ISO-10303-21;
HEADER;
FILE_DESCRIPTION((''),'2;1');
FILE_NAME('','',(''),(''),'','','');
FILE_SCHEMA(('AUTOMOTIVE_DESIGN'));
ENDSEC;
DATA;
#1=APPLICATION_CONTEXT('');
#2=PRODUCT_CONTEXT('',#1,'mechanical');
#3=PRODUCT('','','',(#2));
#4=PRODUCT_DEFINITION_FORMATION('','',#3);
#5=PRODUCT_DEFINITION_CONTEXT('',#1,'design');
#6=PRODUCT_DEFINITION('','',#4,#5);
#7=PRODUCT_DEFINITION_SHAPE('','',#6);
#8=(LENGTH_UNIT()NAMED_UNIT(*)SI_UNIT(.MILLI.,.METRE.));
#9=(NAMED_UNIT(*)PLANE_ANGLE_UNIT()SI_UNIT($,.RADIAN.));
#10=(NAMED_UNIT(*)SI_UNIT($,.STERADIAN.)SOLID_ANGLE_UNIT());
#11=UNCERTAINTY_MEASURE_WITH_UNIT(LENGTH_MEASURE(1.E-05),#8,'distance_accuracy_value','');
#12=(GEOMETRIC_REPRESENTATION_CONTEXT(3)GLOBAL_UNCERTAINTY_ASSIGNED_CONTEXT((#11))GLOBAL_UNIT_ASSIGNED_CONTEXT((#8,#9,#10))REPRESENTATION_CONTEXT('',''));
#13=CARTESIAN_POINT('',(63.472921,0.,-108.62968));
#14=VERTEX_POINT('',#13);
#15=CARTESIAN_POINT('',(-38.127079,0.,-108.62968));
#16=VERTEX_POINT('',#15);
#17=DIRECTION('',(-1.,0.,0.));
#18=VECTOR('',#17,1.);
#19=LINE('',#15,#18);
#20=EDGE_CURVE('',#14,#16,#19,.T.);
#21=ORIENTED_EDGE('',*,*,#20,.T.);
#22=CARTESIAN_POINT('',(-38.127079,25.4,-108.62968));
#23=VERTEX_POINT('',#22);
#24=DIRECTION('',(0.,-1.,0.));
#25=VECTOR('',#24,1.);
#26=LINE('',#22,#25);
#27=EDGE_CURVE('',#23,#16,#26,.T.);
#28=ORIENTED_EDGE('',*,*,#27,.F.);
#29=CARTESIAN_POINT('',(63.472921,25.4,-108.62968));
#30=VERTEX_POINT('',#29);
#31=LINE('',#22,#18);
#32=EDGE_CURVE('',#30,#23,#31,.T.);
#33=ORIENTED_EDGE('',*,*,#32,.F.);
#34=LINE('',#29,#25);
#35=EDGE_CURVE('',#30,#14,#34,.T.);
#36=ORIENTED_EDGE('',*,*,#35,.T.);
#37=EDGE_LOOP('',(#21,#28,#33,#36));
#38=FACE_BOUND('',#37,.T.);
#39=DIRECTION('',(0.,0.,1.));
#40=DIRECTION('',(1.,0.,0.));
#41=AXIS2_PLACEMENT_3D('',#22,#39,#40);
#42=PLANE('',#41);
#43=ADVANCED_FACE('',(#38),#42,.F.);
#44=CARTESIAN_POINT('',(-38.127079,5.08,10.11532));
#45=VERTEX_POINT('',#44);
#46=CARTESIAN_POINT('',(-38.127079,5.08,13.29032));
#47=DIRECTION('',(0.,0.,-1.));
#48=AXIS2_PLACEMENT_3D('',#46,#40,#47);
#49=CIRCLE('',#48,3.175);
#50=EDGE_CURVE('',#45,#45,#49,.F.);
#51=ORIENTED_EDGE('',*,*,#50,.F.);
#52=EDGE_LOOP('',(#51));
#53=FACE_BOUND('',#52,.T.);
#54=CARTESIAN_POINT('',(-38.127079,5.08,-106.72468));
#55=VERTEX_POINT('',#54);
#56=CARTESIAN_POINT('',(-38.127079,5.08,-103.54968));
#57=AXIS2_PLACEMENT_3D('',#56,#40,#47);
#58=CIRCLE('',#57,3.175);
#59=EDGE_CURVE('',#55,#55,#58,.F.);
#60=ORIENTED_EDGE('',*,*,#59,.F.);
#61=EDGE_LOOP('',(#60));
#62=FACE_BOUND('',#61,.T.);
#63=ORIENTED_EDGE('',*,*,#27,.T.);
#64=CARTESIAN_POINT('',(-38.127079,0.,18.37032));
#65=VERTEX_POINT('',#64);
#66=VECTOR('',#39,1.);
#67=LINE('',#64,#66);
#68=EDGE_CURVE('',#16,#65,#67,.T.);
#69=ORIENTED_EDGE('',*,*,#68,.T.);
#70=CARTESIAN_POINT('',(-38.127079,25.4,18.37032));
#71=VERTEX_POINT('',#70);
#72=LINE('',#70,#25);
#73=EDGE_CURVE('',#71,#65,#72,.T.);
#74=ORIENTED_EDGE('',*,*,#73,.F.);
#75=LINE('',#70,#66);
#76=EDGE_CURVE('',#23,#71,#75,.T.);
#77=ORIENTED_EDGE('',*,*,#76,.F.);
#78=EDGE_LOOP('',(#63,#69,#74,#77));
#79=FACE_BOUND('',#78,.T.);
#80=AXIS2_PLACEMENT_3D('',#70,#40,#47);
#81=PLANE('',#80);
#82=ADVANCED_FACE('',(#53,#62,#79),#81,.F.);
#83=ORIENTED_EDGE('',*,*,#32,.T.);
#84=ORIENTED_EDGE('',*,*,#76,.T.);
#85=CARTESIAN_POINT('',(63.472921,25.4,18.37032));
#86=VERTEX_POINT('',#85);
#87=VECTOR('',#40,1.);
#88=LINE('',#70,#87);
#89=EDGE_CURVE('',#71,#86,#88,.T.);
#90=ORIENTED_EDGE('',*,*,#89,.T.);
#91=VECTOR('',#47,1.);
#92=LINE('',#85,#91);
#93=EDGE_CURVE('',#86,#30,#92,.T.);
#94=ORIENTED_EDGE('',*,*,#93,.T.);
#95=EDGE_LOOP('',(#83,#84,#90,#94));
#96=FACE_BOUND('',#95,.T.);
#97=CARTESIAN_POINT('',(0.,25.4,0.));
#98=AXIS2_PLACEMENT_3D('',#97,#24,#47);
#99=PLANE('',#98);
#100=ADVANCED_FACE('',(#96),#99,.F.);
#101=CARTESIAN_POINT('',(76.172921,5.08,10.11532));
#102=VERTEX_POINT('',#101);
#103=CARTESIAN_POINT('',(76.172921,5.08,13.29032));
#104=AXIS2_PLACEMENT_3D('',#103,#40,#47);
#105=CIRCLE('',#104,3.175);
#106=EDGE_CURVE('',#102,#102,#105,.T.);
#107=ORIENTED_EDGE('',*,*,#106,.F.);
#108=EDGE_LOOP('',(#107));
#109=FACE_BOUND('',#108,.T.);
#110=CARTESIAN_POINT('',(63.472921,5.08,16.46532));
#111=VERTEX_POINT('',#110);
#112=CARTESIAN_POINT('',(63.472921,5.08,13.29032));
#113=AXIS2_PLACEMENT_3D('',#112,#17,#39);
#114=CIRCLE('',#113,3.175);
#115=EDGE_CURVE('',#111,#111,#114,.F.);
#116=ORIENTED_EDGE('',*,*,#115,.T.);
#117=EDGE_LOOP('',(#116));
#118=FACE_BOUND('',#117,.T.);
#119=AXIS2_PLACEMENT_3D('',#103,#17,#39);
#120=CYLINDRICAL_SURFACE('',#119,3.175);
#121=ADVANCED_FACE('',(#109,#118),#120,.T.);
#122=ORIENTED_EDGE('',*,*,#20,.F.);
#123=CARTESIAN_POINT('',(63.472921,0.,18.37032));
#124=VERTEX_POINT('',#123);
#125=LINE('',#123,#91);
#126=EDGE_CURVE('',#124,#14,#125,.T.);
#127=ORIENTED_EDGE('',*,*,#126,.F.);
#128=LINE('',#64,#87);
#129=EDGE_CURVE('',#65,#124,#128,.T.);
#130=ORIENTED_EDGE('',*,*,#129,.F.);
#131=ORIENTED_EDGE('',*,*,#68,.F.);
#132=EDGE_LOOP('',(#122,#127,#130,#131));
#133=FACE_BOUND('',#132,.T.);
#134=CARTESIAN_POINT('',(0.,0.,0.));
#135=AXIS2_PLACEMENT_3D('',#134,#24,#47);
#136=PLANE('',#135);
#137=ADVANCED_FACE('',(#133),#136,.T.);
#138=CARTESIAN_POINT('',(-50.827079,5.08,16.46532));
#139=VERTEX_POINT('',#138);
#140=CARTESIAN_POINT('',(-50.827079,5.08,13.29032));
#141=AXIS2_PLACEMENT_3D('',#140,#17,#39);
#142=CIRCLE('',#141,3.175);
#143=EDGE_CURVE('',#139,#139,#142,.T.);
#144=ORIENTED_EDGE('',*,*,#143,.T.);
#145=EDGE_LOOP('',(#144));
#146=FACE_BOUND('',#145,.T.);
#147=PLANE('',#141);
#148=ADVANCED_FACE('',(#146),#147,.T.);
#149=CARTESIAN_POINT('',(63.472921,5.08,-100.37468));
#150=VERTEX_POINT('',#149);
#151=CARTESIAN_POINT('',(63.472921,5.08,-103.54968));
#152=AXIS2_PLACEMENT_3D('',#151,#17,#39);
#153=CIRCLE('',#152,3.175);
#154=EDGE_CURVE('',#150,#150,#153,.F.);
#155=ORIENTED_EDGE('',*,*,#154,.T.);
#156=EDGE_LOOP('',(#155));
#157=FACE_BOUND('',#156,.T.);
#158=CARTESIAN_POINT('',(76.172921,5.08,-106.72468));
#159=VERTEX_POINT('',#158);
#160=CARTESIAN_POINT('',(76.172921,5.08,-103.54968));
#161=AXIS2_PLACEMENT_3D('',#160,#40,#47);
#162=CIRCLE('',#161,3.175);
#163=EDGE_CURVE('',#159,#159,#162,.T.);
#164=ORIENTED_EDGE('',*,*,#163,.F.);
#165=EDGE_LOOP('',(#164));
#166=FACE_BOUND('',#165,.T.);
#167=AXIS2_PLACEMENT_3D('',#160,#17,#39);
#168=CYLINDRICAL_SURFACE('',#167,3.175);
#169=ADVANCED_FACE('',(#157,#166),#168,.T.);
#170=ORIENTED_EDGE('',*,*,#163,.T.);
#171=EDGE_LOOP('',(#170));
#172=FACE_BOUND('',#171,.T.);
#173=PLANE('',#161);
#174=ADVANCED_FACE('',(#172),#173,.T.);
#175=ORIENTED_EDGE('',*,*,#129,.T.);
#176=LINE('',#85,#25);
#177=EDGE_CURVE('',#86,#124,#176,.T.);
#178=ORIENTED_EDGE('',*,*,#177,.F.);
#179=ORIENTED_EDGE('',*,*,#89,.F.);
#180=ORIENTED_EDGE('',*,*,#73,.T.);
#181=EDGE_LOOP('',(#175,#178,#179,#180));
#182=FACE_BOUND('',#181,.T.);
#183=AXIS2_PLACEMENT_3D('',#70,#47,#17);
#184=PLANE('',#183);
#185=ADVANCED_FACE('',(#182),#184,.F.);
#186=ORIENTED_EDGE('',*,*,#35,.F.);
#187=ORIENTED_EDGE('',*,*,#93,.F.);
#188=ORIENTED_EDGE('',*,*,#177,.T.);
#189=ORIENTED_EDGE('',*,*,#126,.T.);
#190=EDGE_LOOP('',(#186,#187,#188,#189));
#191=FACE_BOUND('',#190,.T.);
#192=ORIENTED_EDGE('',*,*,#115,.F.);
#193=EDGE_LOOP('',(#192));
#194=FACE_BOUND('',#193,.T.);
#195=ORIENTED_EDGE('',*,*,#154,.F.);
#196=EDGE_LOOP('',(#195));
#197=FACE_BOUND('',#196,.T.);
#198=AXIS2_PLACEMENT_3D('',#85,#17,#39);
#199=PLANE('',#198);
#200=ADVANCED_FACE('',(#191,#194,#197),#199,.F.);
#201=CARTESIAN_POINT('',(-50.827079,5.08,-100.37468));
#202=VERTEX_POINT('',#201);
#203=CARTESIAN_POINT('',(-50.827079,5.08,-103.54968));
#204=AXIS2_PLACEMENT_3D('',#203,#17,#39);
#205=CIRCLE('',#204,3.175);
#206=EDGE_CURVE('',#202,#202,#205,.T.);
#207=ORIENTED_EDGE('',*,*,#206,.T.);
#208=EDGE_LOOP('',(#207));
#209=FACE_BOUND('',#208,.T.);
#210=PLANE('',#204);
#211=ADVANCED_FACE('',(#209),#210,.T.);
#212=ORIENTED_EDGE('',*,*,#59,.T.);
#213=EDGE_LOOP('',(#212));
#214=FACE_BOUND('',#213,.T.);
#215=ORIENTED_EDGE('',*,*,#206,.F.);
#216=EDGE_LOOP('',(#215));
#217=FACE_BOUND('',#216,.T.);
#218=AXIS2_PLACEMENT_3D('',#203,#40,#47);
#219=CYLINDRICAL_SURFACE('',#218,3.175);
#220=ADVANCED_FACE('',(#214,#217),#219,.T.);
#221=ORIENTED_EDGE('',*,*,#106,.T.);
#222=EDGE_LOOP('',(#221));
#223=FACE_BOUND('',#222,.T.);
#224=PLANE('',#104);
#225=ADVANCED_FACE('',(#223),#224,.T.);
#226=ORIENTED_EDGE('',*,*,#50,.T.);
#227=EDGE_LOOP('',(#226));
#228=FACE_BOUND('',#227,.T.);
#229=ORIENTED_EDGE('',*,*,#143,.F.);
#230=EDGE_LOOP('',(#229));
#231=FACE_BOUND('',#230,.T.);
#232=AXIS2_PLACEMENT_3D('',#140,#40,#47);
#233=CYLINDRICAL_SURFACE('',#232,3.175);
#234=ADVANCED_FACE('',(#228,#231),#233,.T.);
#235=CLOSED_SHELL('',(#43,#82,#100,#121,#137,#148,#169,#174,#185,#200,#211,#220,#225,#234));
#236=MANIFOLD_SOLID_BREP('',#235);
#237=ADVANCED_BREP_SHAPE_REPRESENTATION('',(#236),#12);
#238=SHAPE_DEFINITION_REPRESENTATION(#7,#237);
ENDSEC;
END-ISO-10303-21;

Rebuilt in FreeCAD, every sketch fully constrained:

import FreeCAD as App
import Part
import Sketcher
Q = App.Units.Quantity

doc = App.newDocument("Part")
params = doc.addObject("Spreadsheet::Sheet", "Params")
for row, (alias, value) in enumerate([
    ("sketch1_width", "4 in"),
    ("sketch1_height", "5 in"),
    ("pad1_length", "1 in"),
    ("sketch2_diameter", "0.25 in"),
    ("pad2_length", "0.5 in"),
    ("sketch3_diameter", "0.25 in"),
    ("pad3_length", "0.5 in"),
    ("sketch4_diameter", "0.25 in"),
    ("pad4_length", "0.5 in"),
    ("sketch5_diameter", "0.25 in"),
    ("pad5_length", "0.5 in"),
], start=1):
    params.set(f"A{row}", alias)
    params.set(f"B{row}", "=" + value)
    params.setAlias(f"B{row}", alias)

body = doc.addObject("PartDesign::Body", "Body")

# Sketch on XZ plane
sketch1 = doc.addObject("Sketcher::SketchObject", "Sketch")
body.addObject(sketch1)
sketch1.AttachmentSupport = (doc.XZ_Plane, [""])
sketch1.MapMode = "FlatFace"
sketch1.addGeometry([
    Part.LineSegment(App.Vector(-38.127079, -108.62968, 0), App.Vector(-38.127079, 18.37032, 0)),
    Part.LineSegment(App.Vector(-38.127079, 18.37032, 0), App.Vector(63.472921, 18.37032, 0)),
    Part.LineSegment(App.Vector(63.472921, 18.37032, 0), App.Vector(63.472921, -108.62968, 0)),
    Part.LineSegment(App.Vector(63.472921, -108.62968, 0), App.Vector(-38.127079, -108.62968, 0)),
], False)
sketch1.addConstraint([
    Sketcher.Constraint("Coincident", 0, 2, 1, 1),
    Sketcher.Constraint("Coincident", 1, 2, 2, 1),
    Sketcher.Constraint("Coincident", 2, 2, 3, 1),
    Sketcher.Constraint("Coincident", 3, 2, 0, 1),
    Sketcher.Constraint("Vertical", 0),
    Sketcher.Constraint("Horizontal", 1),
    Sketcher.Constraint("Vertical", 2),
    Sketcher.Constraint("Horizontal", 3),
    Sketcher.Constraint("DistanceX", 1, 1, 1, 2, Q("4 in")),
    Sketcher.Constraint("DistanceY", 0, 1, 0, 2, Q("5 in")),
    Sketcher.Constraint("DistanceX", 0, 2, -1, 1, Q("38.127079 mm")),
    Sketcher.Constraint("DistanceY", -1, 1, 0, 2, Q("18.37032 mm")),
])
sketch1.setExpression("Constraints[8]", "Params.sketch1_width")
sketch1.setExpression("Constraints[9]", "Params.sketch1_height")
pad1 = doc.addObject("PartDesign::Pad", "Pad")
body.addObject(pad1)
pad1.Profile = sketch1
pad1.setExpression("Length", "Params.pad1_length")
pad1.Reversed = True

# Sketch on YZ plane
sketch2 = doc.addObject("Sketcher::SketchObject", "Sketch001")
body.addObject(sketch2)
sketch2.AttachmentSupport = (doc.YZ_Plane, [""])
sketch2.MapMode = "FlatFace"
sketch2.AttachmentOffset = App.Placement(App.Vector(0, 0, 63.472921), App.Rotation())
sketch2.addGeometry(Part.Circle(App.Vector(5.08, 13.29032, 0), App.Vector(0, 0, 1), 3.175), False)
sketch2.addConstraint([
    Sketcher.Constraint("Diameter", 0, Q("0.25 in")),
    Sketcher.Constraint("DistanceX", -1, 1, 0, 3, Q("0.2 in")),
    Sketcher.Constraint("DistanceY", -1, 1, 0, 3, Q("13.29032 mm")),
])
sketch2.setExpression("Constraints[0]", "Params.sketch2_diameter")
pad2 = doc.addObject("PartDesign::Pad", "Pad001")
body.addObject(pad2)
pad2.Profile = sketch2
pad2.setExpression("Length", "Params.pad2_length")

# Sketch on YZ plane
sketch3 = doc.addObject("Sketcher::SketchObject", "Sketch002")
body.addObject(sketch3)
sketch3.AttachmentSupport = (doc.YZ_Plane, [""])
sketch3.MapMode = "FlatFace"
sketch3.AttachmentOffset = App.Placement(App.Vector(0, 0, 63.472921), App.Rotation())
sketch3.addGeometry(Part.Circle(App.Vector(5.08, -103.54968, 0), App.Vector(0, 0, 1), 3.175), False)
sketch3.addConstraint([
    Sketcher.Constraint("Diameter", 0, Q("0.25 in")),
    Sketcher.Constraint("DistanceX", -1, 1, 0, 3, Q("0.2 in")),
    Sketcher.Constraint("DistanceY", 0, 3, -1, 1, Q("103.54968 mm")),
])
sketch3.setExpression("Constraints[0]", "Params.sketch3_diameter")
pad3 = doc.addObject("PartDesign::Pad", "Pad002")
body.addObject(pad3)
pad3.Profile = sketch3
pad3.setExpression("Length", "Params.pad3_length")

# Sketch on YZ plane
sketch4 = doc.addObject("Sketcher::SketchObject", "Sketch003")
body.addObject(sketch4)
sketch4.AttachmentSupport = (doc.YZ_Plane, [""])
sketch4.MapMode = "FlatFace"
sketch4.AttachmentOffset = App.Placement(App.Vector(0, 0, -50.827079), App.Rotation())
sketch4.addGeometry(Part.Circle(App.Vector(5.08, -103.54968, 0), App.Vector(0, 0, 1), 3.175), False)
sketch4.addConstraint([
    Sketcher.Constraint("Diameter", 0, Q("0.25 in")),
    Sketcher.Constraint("DistanceX", -1, 1, 0, 3, Q("0.2 in")),
    Sketcher.Constraint("DistanceY", 0, 3, -1, 1, Q("103.54968 mm")),
])
sketch4.setExpression("Constraints[0]", "Params.sketch4_diameter")
pad4 = doc.addObject("PartDesign::Pad", "Pad003")
body.addObject(pad4)
pad4.Profile = sketch4
pad4.setExpression("Length", "Params.pad4_length")

# Sketch on YZ plane
sketch5 = doc.addObject("Sketcher::SketchObject", "Sketch004")
body.addObject(sketch5)
sketch5.AttachmentSupport = (doc.YZ_Plane, [""])
sketch5.MapMode = "FlatFace"
sketch5.AttachmentOffset = App.Placement(App.Vector(0, 0, -50.827079), App.Rotation())
sketch5.addGeometry(Part.Circle(App.Vector(5.08, 13.29032, 0), App.Vector(0, 0, 1), 3.175), False)
sketch5.addConstraint([
    Sketcher.Constraint("Diameter", 0, Q("0.25 in")),
    Sketcher.Constraint("DistanceX", -1, 1, 0, 3, Q("0.2 in")),
    Sketcher.Constraint("DistanceY", -1, 1, 0, 3, Q("13.29032 mm")),
])
sketch5.setExpression("Constraints[0]", "Params.sketch5_diameter")
pad5 = doc.addObject("PartDesign::Pad", "Pad004")
body.addObject(pad5)
pad5.Profile = sketch5
pad5.setExpression("Length", "Params.pad5_length")

doc.recompute()
